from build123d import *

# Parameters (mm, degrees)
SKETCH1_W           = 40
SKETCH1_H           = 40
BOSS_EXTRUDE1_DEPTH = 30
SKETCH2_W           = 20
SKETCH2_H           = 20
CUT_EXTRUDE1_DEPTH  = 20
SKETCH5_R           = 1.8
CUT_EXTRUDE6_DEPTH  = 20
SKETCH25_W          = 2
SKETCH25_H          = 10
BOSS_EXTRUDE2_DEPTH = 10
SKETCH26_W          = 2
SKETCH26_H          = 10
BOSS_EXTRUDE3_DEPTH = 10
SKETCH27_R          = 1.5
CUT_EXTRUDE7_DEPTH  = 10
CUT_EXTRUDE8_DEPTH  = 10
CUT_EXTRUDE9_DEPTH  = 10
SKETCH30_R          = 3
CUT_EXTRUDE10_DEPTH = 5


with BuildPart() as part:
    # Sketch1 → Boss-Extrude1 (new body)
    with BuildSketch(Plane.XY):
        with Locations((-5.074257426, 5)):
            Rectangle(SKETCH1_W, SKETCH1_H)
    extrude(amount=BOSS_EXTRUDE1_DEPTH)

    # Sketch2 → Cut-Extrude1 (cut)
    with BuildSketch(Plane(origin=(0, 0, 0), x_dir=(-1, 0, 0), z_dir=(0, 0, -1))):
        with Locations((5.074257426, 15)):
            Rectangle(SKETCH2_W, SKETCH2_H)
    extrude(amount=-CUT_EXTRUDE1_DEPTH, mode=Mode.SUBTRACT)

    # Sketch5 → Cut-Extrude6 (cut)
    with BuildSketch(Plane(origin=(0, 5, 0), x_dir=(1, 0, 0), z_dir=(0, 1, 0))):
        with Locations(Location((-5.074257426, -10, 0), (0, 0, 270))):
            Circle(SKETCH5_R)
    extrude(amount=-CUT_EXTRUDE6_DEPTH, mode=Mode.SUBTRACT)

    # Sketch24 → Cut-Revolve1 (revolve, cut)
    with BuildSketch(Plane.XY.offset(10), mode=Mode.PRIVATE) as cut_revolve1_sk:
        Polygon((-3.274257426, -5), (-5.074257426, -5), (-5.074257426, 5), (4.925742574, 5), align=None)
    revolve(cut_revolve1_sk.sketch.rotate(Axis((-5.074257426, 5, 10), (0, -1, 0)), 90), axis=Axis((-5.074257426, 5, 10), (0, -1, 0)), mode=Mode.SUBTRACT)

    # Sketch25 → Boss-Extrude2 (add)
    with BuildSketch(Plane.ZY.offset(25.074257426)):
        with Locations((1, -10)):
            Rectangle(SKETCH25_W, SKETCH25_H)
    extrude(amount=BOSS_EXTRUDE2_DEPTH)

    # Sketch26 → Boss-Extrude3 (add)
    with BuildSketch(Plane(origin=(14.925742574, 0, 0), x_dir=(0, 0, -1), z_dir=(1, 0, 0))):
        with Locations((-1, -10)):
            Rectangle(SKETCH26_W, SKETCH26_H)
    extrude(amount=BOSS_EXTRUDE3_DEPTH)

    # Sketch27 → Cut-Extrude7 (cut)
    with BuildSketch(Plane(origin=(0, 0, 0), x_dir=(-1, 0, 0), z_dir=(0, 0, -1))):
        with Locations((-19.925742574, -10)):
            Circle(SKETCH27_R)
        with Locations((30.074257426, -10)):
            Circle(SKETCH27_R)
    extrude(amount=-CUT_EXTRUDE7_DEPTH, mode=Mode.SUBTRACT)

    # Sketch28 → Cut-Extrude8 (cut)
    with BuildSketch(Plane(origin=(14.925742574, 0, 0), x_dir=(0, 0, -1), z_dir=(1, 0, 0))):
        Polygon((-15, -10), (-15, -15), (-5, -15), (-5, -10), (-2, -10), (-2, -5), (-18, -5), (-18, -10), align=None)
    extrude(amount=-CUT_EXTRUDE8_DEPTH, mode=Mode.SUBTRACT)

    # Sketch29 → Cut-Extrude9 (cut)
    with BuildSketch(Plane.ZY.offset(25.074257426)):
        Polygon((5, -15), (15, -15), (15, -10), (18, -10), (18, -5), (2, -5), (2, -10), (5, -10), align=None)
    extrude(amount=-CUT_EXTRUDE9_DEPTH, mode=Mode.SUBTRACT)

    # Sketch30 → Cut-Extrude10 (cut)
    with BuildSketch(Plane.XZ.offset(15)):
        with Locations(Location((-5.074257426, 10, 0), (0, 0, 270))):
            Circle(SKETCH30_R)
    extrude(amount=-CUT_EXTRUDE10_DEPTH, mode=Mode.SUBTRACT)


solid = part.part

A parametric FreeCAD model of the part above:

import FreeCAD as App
import Part
import Sketcher
from FreeCAD import Vector

doc = App.newDocument("Part")
params = doc.addObject("Spreadsheet::Sheet", "Params")
for row, (alias, value) in enumerate([
    ("sketch1_width", "40 mm"),
    ("pad1_length", "30 mm"),
    ("sketch2_width", "20 mm"),
    ("pocket1_length", "20 mm"),
    ("sketch3_diameter", "3.6 mm"),
    ("pocket2_length", "20 mm"),
    ("sketch4_width", "10 mm"),
    ("sketch4_width2", "1.8 mm"),
    ("groove_angle", "360 deg"),
    ("sketch5_width", "10 mm"),
    ("sketch5_height", "2 mm"),
    ("pad2_length", "10 mm"),
    ("sketch6_width", "10 mm"),
    ("sketch6_height", "2 mm"),
    ("pad3_length", "10 mm"),
    ("sketch7_diameter", "3 mm"),
    ("pocket3_length", "10 mm"),
    ("sketch8_width", "5 mm"),
    ("sketch8_height", "10 mm"),
    ("sketch8_height2", "3 mm"),
    ("pocket4_length", "10 mm"),
    ("sketch9_width", "5 mm"),
    ("sketch9_height", "10 mm"),
    ("sketch9_height2", "3 mm"),
    ("pocket5_length", "10 mm"),
    ("sketch10_diameter", "6 mm"),
    ("pocket6_length", "5 mm"),
], start=1):
    params.set(f"A{row}", alias)
    params.set(f"B{row}", "=" + value)
    params.setAlias(f"B{row}", alias)

body = doc.addObject("PartDesign::Body", "Body")

# Sketch on XY plane
sketch1 = doc.addObject("Sketcher::SketchObject", "Sketch")
body.addObject(sketch1)
sketch1.AttachmentSupport = (doc.XY_Plane, [""])
sketch1.MapMode = "FlatFace"
sketch1.addGeometry(Part.LineSegment(Vector(-25.074257, 25, 0), Vector(-25.074257, -15, 0)), False)
sketch1.addGeometry(Part.LineSegment(Vector(-25.074257, -15, 0), Vector(14.925743, -15, 0)), False)
sketch1.addGeometry(Part.LineSegment(Vector(14.925743, -15, 0), Vector(14.925743, 25, 0)), False)
sketch1.addGeometry(Part.LineSegment(Vector(14.925743, 25, 0), Vector(-25.074257, 25, 0)), False)
sketch1.addConstraint(Sketcher.Constraint("Coincident", 0, 2, 1, 1))
sketch1.addConstraint(Sketcher.Constraint("Coincident", 1, 2, 2, 1))
sketch1.addConstraint(Sketcher.Constraint("Coincident", 2, 2, 3, 1))
sketch1.addConstraint(Sketcher.Constraint("Coincident", 3, 2, 0, 1))
sketch1.addConstraint(Sketcher.Constraint("Vertical", 0))
sketch1.addConstraint(Sketcher.Constraint("Horizontal", 1))
sketch1.addConstraint(Sketcher.Constraint("Vertical", 2))
sketch1.addConstraint(Sketcher.Constraint("Horizontal", 3))
sketch1.addConstraint(Sketcher.Constraint("Equal", 3, 0))
sketch1.addConstraint(Sketcher.Constraint("DistanceX", 1, 1, 1, 2, 40.0))
sketch1.addConstraint(Sketcher.Constraint("DistanceY", 0, 2, -1, 1, 15.0))
sketch1.addConstraint(Sketcher.Constraint("DistanceX", 0, 2, -1, 1, 25.074257))
sketch1.setExpression("Constraints[9]", "Params.sketch1_width")
pad1 = doc.addObject("PartDesign::Pad", "Pad")
body.addObject(pad1)
pad1.Profile = sketch1
pad1.setExpression("Length", "Params.pad1_length")

# Sketch on XY plane
sketch2 = doc.addObject("Sketcher::SketchObject", "Sketch001")
body.addObject(sketch2)
sketch2.AttachmentSupport = (doc.XY_Plane, [""])
sketch2.MapMode = "FlatFace"
sketch2.addGeometry(Part.LineSegment(Vector(4.925743, 25, 0), Vector(4.925743, 5, 0)), False)
sketch2.addGeometry(Part.LineSegment(Vector(4.925743, 5, 0), Vector(-15.074257, 5, 0)), False)
sketch2.addGeometry(Part.LineSegment(Vector(-15.074257, 5, 0), Vector(-15.074257, 25, 0)), False)
sketch2.addGeometry(Part.LineSegment(Vector(-15.074257, 25, 0), Vector(4.925743, 25, 0)), False)
sketch2.addConstraint(Sketcher.Constraint("Coincident", 0, 2, 1, 1))
sketch2.addConstraint(Sketcher.Constraint("Coincident", 1, 2, 2, 1))
sketch2.addConstraint(Sketcher.Constraint("Coincident", 2, 2, 3, 1))
sketch2.addConstraint(Sketcher.Constraint("Coincident", 3, 2, 0, 1))
sketch2.addConstraint(Sketcher.Constraint("Vertical", 0))
sketch2.addConstraint(Sketcher.Constraint("Horizontal", 1))
sketch2.addConstraint(Sketcher.Constraint("Vertical", 2))
sketch2.addConstraint(Sketcher.Constraint("Horizontal", 3))
sketch2.addConstraint(Sketcher.Constraint("Equal", 3, 0))
sketch2.addConstraint(Sketcher.Constraint("DistanceX", 1, 2, 1, 1, 20.0))
sketch2.addConstraint(Sketcher.Constraint("DistanceY", -1, 1, 0, 2, 5.0))
sketch2.addConstraint(Sketcher.Constraint("DistanceX", -1, 1, 0, 2, 4.925743))
sketch2.setExpression("Constraints[9]", "Params.sketch2_width")
pocket1 = doc.addObject("PartDesign::Pocket", "Pocket")
body.addObject(pocket1)
pocket1.Profile = sketch2
pocket1.setExpression("Length", "Params.pocket1_length")
pocket1.Reversed = True

# Sketch on XZ plane
sketch3 = doc.addObject("Sketcher::SketchObject", "Sketch002")
body.addObject(sketch3)
sketch3.AttachmentSupport = (doc.XZ_Plane, [""])
sketch3.MapMode = "FlatFace"
sketch3.AttachmentOffset = App.Placement(Vector(0, 0, -5), App.Rotation())
sketch3.addGeometry(Part.Circle(Vector(-5.074257, 10, 0), Vector(0, 0, 1), 1.8), False)
sketch3.addConstraint(Sketcher.Constraint("Diameter", 0, 3.6))
sketch3.addConstraint(Sketcher.Constraint("DistanceY", -1, 1, 0, 3, 10.0))
sketch3.addConstraint(Sketcher.Constraint("DistanceX", 0, 3, -1, 1, 5.074257))
sketch3.setExpression("Constraints[0]", "Params.sketch3_diameter")
pocket2 = doc.addObject("PartDesign::Pocket", "Pocket001")
body.addObject(pocket2)
pocket2.Profile = sketch3
pocket2.setExpression("Length", "Params.pocket2_length")
pocket2.Reversed = True

# Sketch on XY plane
sketch4 = doc.addObject("Sketcher::SketchObject", "Sketch003")
body.addObject(sketch4)
sketch4.AttachmentSupport = (doc.XY_Plane, [""])
sketch4.MapMode = "FlatFace"
sketch4.AttachmentOffset = App.Placement(Vector(0, 0, 10), App.Rotation())
sketch4.addGeometry(Part.LineSegment(Vector(-5.074257, -5, 0), Vector(-3.274257, -5, 0)), False)
sketch4.addGeometry(Part.LineSegment(Vector(-3.274257, -5, 0), Vector(4.925743, 5, 0)), False)
sketch4.addGeometry(Part.LineSegment(Vector(4.925743, 5, 0), Vector(-5.074257, 5, 0)), False)
sketch4.addGeometry(Part.LineSegment(Vector(-5.074257, 5, 0), Vector(-5.074257, -5, 0)), False)
sketch4.addGeometry(Part.LineSegment(Vector(-5.074257, 5, 0), Vector(-5.074257, -5, 0)), True)  # axis
sketch4.addConstraint(Sketcher.Constraint("Coincident", 0, 2, 1, 1))
sketch4.addConstraint(Sketcher.Constraint("Coincident", 1, 2, 2, 1))
sketch4.addConstraint(Sketcher.Constraint("Coincident", 2, 2, 3, 1))
sketch4.addConstraint(Sketcher.Constraint("Coincident", 3, 2, 0, 1))
sketch4.addConstraint(Sketcher.Constraint("Horizontal", 0))
sketch4.addConstraint(Sketcher.Constraint("Horizontal", 2))
sketch4.addConstraint(Sketcher.Constraint("Vertical", 3))
sketch4.addConstraint(Sketcher.Constraint("Vertical", 4))
sketch4.addConstraint(Sketcher.Constraint("Coincident", 4, 1, 2, 2))
sketch4.addConstraint(Sketcher.Constraint("Horizontal", 0, 2, 4, 2))
sketch4.addConstraint(Sketcher.Constraint("Equal", 2, 3))
sketch4.addConstraint(Sketcher.Constraint("DistanceX", 2, 2, 2, 1, 10.0))
sketch4.addConstraint(Sketcher.Constraint("DistanceX", 0, 1, 0, 2, 1.8))
sketch4.addConstraint(Sketcher.Constraint("DistanceY", 0, 2, -1, 1, 5.0))
sketch4.addConstraint(Sketcher.Constraint("DistanceX", 0, 2, -1, 1, 3.274257))
sketch4.setExpression("Constraints[11]", "Params.sketch4_width")
sketch4.setExpression("Constraints[12]", "Params.sketch4_width2")
groove = doc.addObject("PartDesign::Groove", "Groove")
body.addObject(groove)
groove.Profile = sketch4
groove.ReferenceAxis = (sketch4, ["Axis0"])
groove.setExpression("Angle", "Params.groove_angle")

# Sketch on YZ plane
sketch5 = doc.addObject("Sketcher::SketchObject", "Sketch004")
body.addObject(sketch5)
sketch5.AttachmentSupport = (doc.YZ_Plane, [""])
sketch5.MapMode = "FlatFace"
sketch5.AttachmentOffset = App.Placement(Vector(0, 0, -25.074257), App.Rotation())
sketch5.addGeometry(Part.LineSegment(Vector(-5, 0, 0), Vector(-15, 0, 0)), False)
sketch5.addGeometry(Part.LineSegment(Vector(-15, 0, 0), Vector(-15, 2, 0)), False)
sketch5.addGeometry(Part.LineSegment(Vector(-15, 2, 0), Vector(-5, 2, 0)), False)
sketch5.addGeometry(Part.LineSegment(Vector(-5, 2, 0), Vector(-5, 0, 0)), False)
sketch5.addConstraint(Sketcher.Constraint("Coincident", 0, 2, 1, 1))
sketch5.addConstraint(Sketcher.Constraint("Coincident", 1, 2, 2, 1))
sketch5.addConstraint(Sketcher.Constraint("Coincident", 2, 2, 3, 1))
sketch5.addConstraint(Sketcher.Constraint("Coincident", 3, 2, 0, 1))
sketch5.addConstraint(Sketcher.Constraint("Horizontal", 0))
sketch5.addConstraint(Sketcher.Constraint("Vertical", 1))
sketch5.addConstraint(Sketcher.Constraint("Horizontal", 2))
sketch5.addConstraint(Sketcher.Constraint("Vertical", 3))
sketch5.addConstraint(Sketcher.Constraint("PointOnObject", 0, 2, -1))
sketch5.addConstraint(Sketcher.Constraint("DistanceX", 0, 2, 0, 1, 10.0))
sketch5.addConstraint(Sketcher.Constraint("DistanceY", 1, 1, 1, 2, 2.0))
sketch5.addConstraint(Sketcher.Constraint("DistanceX", 0, 2, -1, 1, 15.0))
sketch5.setExpression("Constraints[9]", "Params.sketch5_width")
sketch5.setExpression("Constraints[10]", "Params.sketch5_height")
pad2 = doc.addObject("PartDesign::Pad", "Pad001")
body.addObject(pad2)
pad2.Profile = sketch5
pad2.setExpression("Length", "Params.pad2_length")
pad2.Reversed = True

# Sketch on YZ plane
sketch6 = doc.addObject("Sketcher::SketchObject", "Sketch005")
body.addObject(sketch6)
sketch6.AttachmentSupport = (doc.YZ_Plane, [""])
sketch6.MapMode = "FlatFace"
sketch6.AttachmentOffset = App.Placement(Vector(0, 0, 14.925743), App.Rotation())
sketch6.addGeometry(Part.LineSegment(Vector(-5, 2, 0), Vector(-15, 2, 0)), False)
sketch6.addGeometry(Part.LineSegment(Vector(-15, 2, 0), Vector(-15, 0, 0)), False)
sketch6.addGeometry(Part.LineSegment(Vector(-15, 0, 0), Vector(-5, 0, 0)), False)
sketch6.addGeometry(Part.LineSegment(Vector(-5, 0, 0), Vector(-5, 2, 0)), False)
sketch6.addConstraint(Sketcher.Constraint("Coincident", 0, 2, 1, 1))
sketch6.addConstraint(Sketcher.Constraint("Coincident", 1, 2, 2, 1))
sketch6.addConstraint(Sketcher.Constraint("Coincident", 2, 2, 3, 1))
sketch6.addConstraint(Sketcher.Constraint("Coincident", 3, 2, 0, 1))
sketch6.addConstraint(Sketcher.Constraint("Horizontal", 0))
sketch6.addConstraint(Sketcher.Constraint("Vertical", 1))
sketch6.addConstraint(Sketcher.Constraint("Horizontal", 2))
sketch6.addConstraint(Sketcher.Constraint("Vertical", 3))
sketch6.addConstraint(Sketcher.Constraint("PointOnObject", 1, 2, -1))
sketch6.addConstraint(Sketcher.Constraint("DistanceX", 0, 2, 0, 1, 10.0))
sketch6.addConstraint(Sketcher.Constraint("DistanceY", 1, 2, 1, 1, 2.0))
sketch6.addConstraint(Sketcher.Constraint("DistanceX", 0, 2, -1, 1, 15.0))
sketch6.setExpression("Constraints[9]", "Params.sketch6_width")
sketch6.setExpression("Constraints[10]", "Params.sketch6_height")
pad3 = doc.addObject("PartDesign::Pad", "Pad002")
body.addObject(pad3)
pad3.Profile = sketch6
pad3.setExpression("Length", "Params.pad3_length")

# Sketch on XY plane
sketch7 = doc.addObject("Sketcher::SketchObject", "Sketch006")
body.addObject(sketch7)
sketch7.AttachmentSupport = (doc.XY_Plane, [""])
sketch7.MapMode = "FlatFace"
sketch7.addGeometry(Part.Circle(Vector(19.925743, -10, 0), Vector(0, 0, 1), 1.5), False)
sketch7.addGeometry(Part.Circle(Vector(-30.074257, -10, 0), Vector(0, 0, 1), 1.5), False)
sketch7.addConstraint(Sketcher.Constraint("Equal", 0, 1))
sketch7.addConstraint(Sketcher.Constraint("Horizontal", 0, 3, 1, 3))
sketch7.addConstraint(Sketcher.Constraint("Diameter", 0, 3.0))
sketch7.addConstraint(Sketcher.Constraint("DistanceY", 0, 3, -1, 1, 10.0))
sketch7.addConstraint(Sketcher.Constraint("DistanceX", 1, 3, 0, 3, 50.0))
sketch7.addConstraint(Sketcher.Constraint("DistanceX", -1, 1, 0, 3, 19.925743))
sketch7.setExpression("Constraints[2]", "Params.sketch7_diameter")
pocket3 = doc.addObject("PartDesign::Pocket", "Pocket002")
body.addObject(pocket3)
pocket3.Profile = sketch7
pocket3.setExpression("Length", "Params.pocket3_length")
pocket3.Reversed = True

# Sketch on YZ plane
sketch8 = doc.addObject("Sketcher::SketchObject", "Sketch007")
body.addObject(sketch8)
sketch8.AttachmentSupport = (doc.YZ_Plane, [""])
sketch8.MapMode = "FlatFace"
sketch8.AttachmentOffset = App.Placement(Vector(0, 0, 14.925743), App.Rotation())
sketch8.addGeometry(Part.LineSegment(Vector(-10, 15, 0), Vector(-15, 15, 0)), False)
sketch8.addGeometry(Part.LineSegment(Vector(-15, 15, 0), Vector(-15, 5, 0)), False)
sketch8.addGeometry(Part.LineSegment(Vector(-15, 5, 0), Vector(-10, 5, 0)), False)
sketch8.addGeometry(Part.LineSegment(Vector(-10, 5, 0), Vector(-10, 2, 0)), False)
sketch8.addGeometry(Part.LineSegment(Vector(-10, 2, 0), Vector(-5, 2, 0)), False)
sketch8.addGeometry(Part.LineSegment(Vector(-5, 2, 0), Vector(-5, 18, 0)), False)
sketch8.addGeometry(Part.LineSegment(Vector(-5, 18, 0), Vector(-10, 18, 0)), False)
sketch8.addGeometry(Part.LineSegment(Vector(-10, 18, 0), Vector(-10, 15, 0)), False)
sketch8.addConstraint(Sketcher.Constraint("Coincident", 0, 2, 1, 1))
sketch8.addConstraint(Sketcher.Constraint("Coincident", 1, 2, 2, 1))
sketch8.addConstraint(Sketcher.Constraint("Coincident", 2, 2, 3, 1))
sketch8.addConstraint(Sketcher.Constraint("Coincident", 3, 2, 4, 1))
sketch8.addConstraint(Sketcher.Constraint("Coincident", 4, 2, 5, 1))
sketch8.addConstraint(Sketcher.Constraint("Coincident", 5, 2, 6, 1))
sketch8.addConstraint(Sketcher.Constraint("Coincident", 6, 2, 7, 1))
sketch8.addConstraint(Sketcher.Constraint("Coincident", 7, 2, 0, 1))
sketch8.addConstraint(Sketcher.Constraint("Horizontal", 0))
sketch8.addConstraint(Sketcher.Constraint("Vertical", 1))
sketch8.addConstraint(Sketcher.Constraint("Horizontal", 2))
sketch8.addConstraint(Sketcher.Constraint("Vertical", 3))
sketch8.addConstraint(Sketcher.Constraint("Horizontal", 4))
sketch8.addConstraint(Sketcher.Constraint("Vertical", 5))
sketch8.addConstraint(Sketcher.Constraint("Horizontal", 6))
sketch8.addConstraint(Sketcher.Constraint("Vertical", 7))
sketch8.addConstraint(Sketcher.Constraint("Vertical", 3, 2, 6, 2))
sketch8.addConstraint(Sketcher.Constraint("Equal", 2, 4))
sketch8.addConstraint(Sketcher.Constraint("Equal", 3, 7))
sketch8.addConstraint(Sketcher.Constraint("DistanceX", 0, 2, 0, 1, 5.0))
sketch8.addConstraint(Sketcher.Constraint("DistanceY", 1, 2, 1, 1, 10.0))
sketch8.addConstraint(Sketcher.Constraint("DistanceY", 3, 2, 3, 1, 3.0))
sketch8.addConstraint(Sketcher.Constraint("DistanceX", 0, 2, -1, 1, 15.0))
sketch8.addConstraint(Sketcher.Constraint("DistanceY", -1, 1, 0, 2, 15.0))
sketch8.setExpression("Constraints[19]", "Params.sketch8_width")
sketch8.setExpression("Constraints[20]", "Params.sketch8_height")
sketch8.setExpression("Constraints[21]", "Params.sketch8_height2")
pocket4 = doc.addObject("PartDesign::Pocket", "Pocket003")
body.addObject(pocket4)
pocket4.Profile = sketch8
pocket4.setExpression("Length", "Params.pocket4_length")

# Sketch on YZ plane
sketch9 = doc.addObject("Sketcher::SketchObject", "Sketch008")
body.addObject(sketch9)
sketch9.AttachmentSupport = (doc.YZ_Plane, [""])
sketch9.MapMode = "FlatFace"
sketch9.AttachmentOffset = App.Placement(Vector(0, 0, -25.074257), App.Rotation())
sketch9.addGeometry(Part.LineSegment(Vector(-15, 5, 0), Vector(-15, 15, 0)), False)
sketch9.addGeometry(Part.LineSegment(Vector(-15, 15, 0), Vector(-10, 15, 0)), False)
sketch9.addGeometry(Part.LineSegment(Vector(-10, 15, 0), Vector(-10, 18, 0)), False)
sketch9.addGeometry(Part.LineSegment(Vector(-10, 18, 0), Vector(-5, 18, 0)), False)
sketch9.addGeometry(Part.LineSegment(Vector(-5, 18, 0), Vector(-5, 2, 0)), False)
sketch9.addGeometry(Part.LineSegment(Vector(-5, 2, 0), Vector(-10, 2, 0)), False)
sketch9.addGeometry(Part.LineSegment(Vector(-10, 2, 0), Vector(-10, 5, 0)), False)
sketch9.addGeometry(Part.LineSegment(Vector(-10, 5, 0), Vector(-15, 5, 0)), False)
sketch9.addConstraint(Sketcher.Constraint("Coincident", 0, 2, 1, 1))
sketch9.addConstraint(Sketcher.Constraint("Coincident", 1, 2, 2, 1))
sketch9.addConstraint(Sketcher.Constraint("Coincident", 2, 2, 3, 1))
sketch9.addConstraint(Sketcher.Constraint("Coincident", 3, 2, 4, 1))
sketch9.addConstraint(Sketcher.Constraint("Coincident", 4, 2, 5, 1))
sketch9.addConstraint(Sketcher.Constraint("Coincident", 5, 2, 6, 1))
sketch9.addConstraint(Sketcher.Constraint("Coincident", 6, 2, 7, 1))
sketch9.addConstraint(Sketcher.Constraint("Coincident", 7, 2, 0, 1))
sketch9.addConstraint(Sketcher.Constraint("Vertical", 0))
sketch9.addConstraint(Sketcher.Constraint("Horizontal", 1))
sketch9.addConstraint(Sketcher.Constraint("Vertical", 2))
sketch9.addConstraint(Sketcher.Constraint("Horizontal", 3))
sketch9.addConstraint(Sketcher.Constraint("Vertical", 4))
sketch9.addConstraint(Sketcher.Constraint("Horizontal", 5))
sketch9.addConstraint(Sketcher.Constraint("Vertical", 6))
sketch9.addConstraint(Sketcher.Constraint("Horizontal", 7))
sketch9.addConstraint(Sketcher.Constraint("Vertical", 2, 2, 5, 2))
sketch9.addConstraint(Sketcher.Constraint("Equal", 1, 3))
sketch9.addConstraint(Sketcher.Constraint("Equal", 2, 6))
sketch9.addConstraint(Sketcher.Constraint("DistanceX", 1, 1, 1, 2, 5.0))
sketch9.addConstraint(Sketcher.Constraint("DistanceY", 0, 1, 0, 2, 10.0))
sketch9.addConstraint(Sketcher.Constraint("DistanceY", 2, 1, 2, 2, 3.0))
sketch9.addConstraint(Sketcher.Constraint("DistanceX", 0, 2, -1, 1, 15.0))
sketch9.addConstraint(Sketcher.Constraint("DistanceY", -1, 1, 0, 2, 15.0))
sketch9.setExpression("Constraints[19]", "Params.sketch9_width")
sketch9.setExpression("Constraints[20]", "Params.sketch9_height")
sketch9.setExpression("Constraints[21]", "Params.sketch9_height2")
pocket5 = doc.addObject("PartDesign::Pocket", "Pocket004")
body.addObject(pocket5)
pocket5.Profile = sketch9
pocket5.setExpression("Length", "Params.pocket5_length")
pocket5.Reversed = True

# Sketch on XZ plane
sketch10 = doc.addObject("Sketcher::SketchObject", "Sketch009")
body.addObject(sketch10)
sketch10.AttachmentSupport = (doc.XZ_Plane, [""])
sketch10.MapMode = "FlatFace"
sketch10.AttachmentOffset = App.Placement(Vector(0, 0, 15), App.Rotation())
sketch10.addGeometry(Part.Circle(Vector(-5.074257, 10, 0), Vector(0, 0, 1), 3), False)
sketch10.addConstraint(Sketcher.Constraint("Diameter", 0, 6.0))
sketch10.addConstraint(Sketcher.Constraint("DistanceY", -1, 1, 0, 3, 10.0))
sketch10.addConstraint(Sketcher.Constraint("DistanceX", 0, 3, -1, 1, 5.074257))
sketch10.setExpression("Constraints[0]", "Params.sketch10_diameter")
pocket6 = doc.addObject("PartDesign::Pocket", "Pocket005")
body.addObject(pocket6)
pocket6.Profile = sketch10
pocket6.setExpression("Length", "Params.pocket6_length")

doc.recompute()
